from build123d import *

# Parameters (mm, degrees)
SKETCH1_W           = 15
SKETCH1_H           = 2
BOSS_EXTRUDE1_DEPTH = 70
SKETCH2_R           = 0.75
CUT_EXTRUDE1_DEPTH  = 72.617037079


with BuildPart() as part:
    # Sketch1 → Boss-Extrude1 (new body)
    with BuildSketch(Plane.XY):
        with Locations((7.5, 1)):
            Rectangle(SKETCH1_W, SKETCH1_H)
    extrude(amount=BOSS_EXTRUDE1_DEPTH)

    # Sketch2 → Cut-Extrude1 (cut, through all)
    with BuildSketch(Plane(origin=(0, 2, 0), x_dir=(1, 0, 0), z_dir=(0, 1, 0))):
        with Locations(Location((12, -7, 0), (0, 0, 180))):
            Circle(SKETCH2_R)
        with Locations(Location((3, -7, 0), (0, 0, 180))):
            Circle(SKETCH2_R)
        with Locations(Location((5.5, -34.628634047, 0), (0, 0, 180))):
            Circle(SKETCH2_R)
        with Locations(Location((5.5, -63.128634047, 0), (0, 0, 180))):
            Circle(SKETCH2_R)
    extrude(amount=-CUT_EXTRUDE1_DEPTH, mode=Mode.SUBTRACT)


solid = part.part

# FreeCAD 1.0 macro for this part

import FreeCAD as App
import Part
import Sketcher


def add_polygon(sketch, points):
    """Adds a closed chain of lines whose ends are joined by coincident constraints."""
    first, n = sketch.GeometryCount, len(points)
    for a, b in zip(points, points[1:] + points[:1]):
        sketch.addGeometry(Part.LineSegment(App.Vector(*a, 0), App.Vector(*b, 0)), False)
    for i in range(n):
        sketch.addConstraint(Sketcher.Constraint("Coincident", first + i, 2, first + (i + 1) % n, 1))

doc = App.newDocument("Part")
body = doc.addObject("PartDesign::Body", "Body")

# Sketch on XY plane
sketch1 = body.newObject("Sketcher::SketchObject", "Sketch")
sketch1.AttachmentSupport = (doc.getObject("XY_Plane"), [""])
sketch1.MapMode = "FlatFace"
add_polygon(sketch1, [(0, 2), (0, 0), (15, 0), (15, 2)])  # lines 0-3
sketch1.addConstraint([
    Sketcher.Constraint("Vertical", 0),
    Sketcher.Constraint("Horizontal", 1),
    Sketcher.Constraint("Vertical", 2),
    Sketcher.Constraint("Horizontal", 3),
    Sketcher.Constraint("Coincident", 0, 2, -1, 1),
    Sketcher.Constraint("DistanceX", 1, 1, 1, 2, 15.0),
    Sketcher.Constraint("DistanceY", 0, 2, 0, 1, 2.0),
])
pad1 = body.newObject("PartDesign::Pad", "Pad")
pad1.Profile = sketch1
pad1.Length = 70

# Sketch on XZ plane
sketch2 = body.newObject("Sketcher::SketchObject", "Sketch001")
sketch2.AttachmentSupport = (doc.getObject("XZ_Plane"), [""])
sketch2.MapMode = "FlatFace"
sketch2.AttachmentOffset = App.Placement(App.Vector(0, 0, -2), App.Rotation())
sketch2.addGeometry([
    Part.Circle(App.Vector(12, 7, 0), App.Vector(0, 0, 1), 0.8),
    Part.Circle(App.Vector(3, 7, 0), App.Vector(0, 0, 1), 0.8),
    Part.Circle(App.Vector(5.5, 34.6, 0), App.Vector(0, 0, 1), 0.8),
    Part.Circle(App.Vector(5.5, 63.1, 0), App.Vector(0, 0, 1), 0.8),
], False)
sketch2.addConstraint([
    Sketcher.Constraint("Equal", 0, 1),
    Sketcher.Constraint("Equal", 1, 2),
    Sketcher.Constraint("Equal", 2, 3),
    Sketcher.Constraint("Horizontal", 0, 3, 1, 3),
    Sketcher.Constraint("Vertical", 2, 3, 3, 3),
    Sketcher.Constraint("Diameter", 0, 1.5),
    Sketcher.Constraint("DistanceX", -1, 1, 0, 3, 12.0),
    Sketcher.Constraint("DistanceY", -1, 1, 0, 3, 7.0),
    Sketcher.Constraint("DistanceX", -1, 1, 1, 3, 3.0),
    Sketcher.Constraint("DistanceX", -1, 1, 2, 3, 5.5),
    Sketcher.Constraint("DistanceY", 2, 3, 3, 3, 28.5),
    Sketcher.Constraint("DistanceY", -1, 1, 2, 3, 34.628634),
])
pocket1 = body.newObject("PartDesign::Pocket", "Pocket")
pocket1.Profile = sketch2
pocket1.Type = "ThroughAll"
pocket1.Reversed = True

doc.recompute()
